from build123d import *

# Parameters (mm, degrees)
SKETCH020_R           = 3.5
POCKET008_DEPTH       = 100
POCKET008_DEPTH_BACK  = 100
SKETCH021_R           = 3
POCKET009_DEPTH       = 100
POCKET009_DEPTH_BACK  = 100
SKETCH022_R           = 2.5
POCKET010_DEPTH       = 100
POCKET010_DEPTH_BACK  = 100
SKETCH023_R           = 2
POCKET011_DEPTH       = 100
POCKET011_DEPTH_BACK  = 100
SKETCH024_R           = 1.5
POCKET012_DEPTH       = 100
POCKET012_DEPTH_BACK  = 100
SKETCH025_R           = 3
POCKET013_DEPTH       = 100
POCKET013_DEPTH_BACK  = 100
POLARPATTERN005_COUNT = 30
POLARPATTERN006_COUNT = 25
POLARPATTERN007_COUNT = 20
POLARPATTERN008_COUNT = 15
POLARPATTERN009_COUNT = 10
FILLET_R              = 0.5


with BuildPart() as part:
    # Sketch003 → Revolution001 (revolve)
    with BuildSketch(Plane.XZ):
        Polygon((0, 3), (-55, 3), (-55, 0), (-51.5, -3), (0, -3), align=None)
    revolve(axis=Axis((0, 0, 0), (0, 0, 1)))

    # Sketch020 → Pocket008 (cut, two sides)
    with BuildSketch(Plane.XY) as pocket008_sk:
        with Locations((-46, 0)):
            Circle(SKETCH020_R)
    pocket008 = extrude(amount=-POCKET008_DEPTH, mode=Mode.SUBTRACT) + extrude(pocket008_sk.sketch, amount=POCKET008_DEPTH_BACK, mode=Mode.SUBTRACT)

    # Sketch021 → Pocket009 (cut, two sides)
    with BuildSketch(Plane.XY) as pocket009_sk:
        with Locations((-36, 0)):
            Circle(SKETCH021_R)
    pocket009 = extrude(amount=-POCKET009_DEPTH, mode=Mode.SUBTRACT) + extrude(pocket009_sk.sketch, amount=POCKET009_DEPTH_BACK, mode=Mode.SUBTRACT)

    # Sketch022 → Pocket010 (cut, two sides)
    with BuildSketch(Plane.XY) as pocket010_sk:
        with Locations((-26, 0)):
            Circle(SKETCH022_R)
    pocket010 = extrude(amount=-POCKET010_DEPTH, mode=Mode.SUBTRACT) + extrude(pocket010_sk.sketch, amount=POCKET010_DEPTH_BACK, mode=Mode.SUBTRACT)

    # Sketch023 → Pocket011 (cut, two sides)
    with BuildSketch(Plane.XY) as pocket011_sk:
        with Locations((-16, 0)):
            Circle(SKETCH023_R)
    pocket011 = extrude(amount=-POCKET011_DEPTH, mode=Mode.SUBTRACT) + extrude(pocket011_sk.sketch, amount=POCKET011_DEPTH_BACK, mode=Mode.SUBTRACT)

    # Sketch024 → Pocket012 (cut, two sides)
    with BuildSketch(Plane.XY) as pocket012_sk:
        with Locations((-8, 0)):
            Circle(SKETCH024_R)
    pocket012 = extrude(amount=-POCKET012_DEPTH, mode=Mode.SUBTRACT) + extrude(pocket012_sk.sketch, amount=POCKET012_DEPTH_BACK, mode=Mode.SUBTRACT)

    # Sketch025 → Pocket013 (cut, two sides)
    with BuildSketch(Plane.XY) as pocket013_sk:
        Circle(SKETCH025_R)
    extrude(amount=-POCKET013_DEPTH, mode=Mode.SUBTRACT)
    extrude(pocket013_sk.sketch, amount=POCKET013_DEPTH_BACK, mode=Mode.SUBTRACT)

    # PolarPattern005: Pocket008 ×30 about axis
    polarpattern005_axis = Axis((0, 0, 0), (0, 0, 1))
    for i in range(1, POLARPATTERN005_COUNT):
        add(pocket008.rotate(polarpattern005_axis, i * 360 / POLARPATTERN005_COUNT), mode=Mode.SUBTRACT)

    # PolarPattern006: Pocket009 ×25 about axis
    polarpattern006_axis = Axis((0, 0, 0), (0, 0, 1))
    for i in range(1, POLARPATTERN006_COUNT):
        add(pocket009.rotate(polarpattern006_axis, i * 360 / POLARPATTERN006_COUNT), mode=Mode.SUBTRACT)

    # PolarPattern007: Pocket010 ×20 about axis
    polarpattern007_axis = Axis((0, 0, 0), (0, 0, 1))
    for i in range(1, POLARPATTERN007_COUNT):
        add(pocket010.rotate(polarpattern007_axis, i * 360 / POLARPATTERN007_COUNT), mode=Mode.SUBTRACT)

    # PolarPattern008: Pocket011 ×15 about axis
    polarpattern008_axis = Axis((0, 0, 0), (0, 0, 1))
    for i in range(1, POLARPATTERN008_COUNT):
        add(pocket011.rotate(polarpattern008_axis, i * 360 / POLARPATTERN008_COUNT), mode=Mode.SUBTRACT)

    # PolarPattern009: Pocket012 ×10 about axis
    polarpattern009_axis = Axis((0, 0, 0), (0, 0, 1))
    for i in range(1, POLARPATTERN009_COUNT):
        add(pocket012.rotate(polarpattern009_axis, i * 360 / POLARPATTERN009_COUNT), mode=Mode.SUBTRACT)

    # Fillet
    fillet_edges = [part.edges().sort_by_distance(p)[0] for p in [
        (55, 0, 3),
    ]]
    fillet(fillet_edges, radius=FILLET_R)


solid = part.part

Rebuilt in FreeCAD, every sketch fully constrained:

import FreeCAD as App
import Part
import Sketcher
from FreeCAD import Vector
Q = App.Units.Quantity


def edges_at(feature, points):
    """Names of the edges that pass closest to the given points."""
    edges = feature.Shape.Edges
    near = lambda p: min(range(len(edges)), key=lambda i: edges[i].distToShape(Part.Vertex(*p))[0])
    return sorted({f"Edge{near(p) + 1}" for p in points})

doc = App.newDocument("Part")
body = doc.addObject("PartDesign::Body", "Body")

# Sketch on XZ plane
sketch1 = body.newObject("Sketcher::SketchObject", "Sketch")
sketch1.AttachmentSupport = (doc.getObject("XZ_Plane"), [""])
sketch1.MapMode = "FlatFace"
sketch1.addGeometry([
    Part.LineSegment(Vector(0, 3, 0), Vector(-55, 3, 0)),  # 0
    Part.LineSegment(Vector(-55, 3, 0), Vector(-55, 0, 0)),  # 1
    Part.LineSegment(Vector(-55, 0, 0), Vector(-51.5, -3, 0)),  # 2
    Part.LineSegment(Vector(-51.5, -3, 0), Vector(0, -3, 0)),  # 3
    Part.LineSegment(Vector(0, -3, 0), Vector(0, 3, 0)),  # 4
], False)
sketch1.addConstraint([
    Sketcher.Constraint("Coincident", 0, 2, 1, 1),
    Sketcher.Constraint("Coincident", 1, 2, 2, 1),
    Sketcher.Constraint("Coincident", 2, 2, 3, 1),
    Sketcher.Constraint("Coincident", 3, 2, 4, 1),
    Sketcher.Constraint("Coincident", 4, 2, 0, 1),
    Sketcher.Constraint("Horizontal", 0),
    Sketcher.Constraint("Vertical", 1),
    Sketcher.Constraint("Horizontal", 3),
    Sketcher.Constraint("Vertical", 4),
    Sketcher.Constraint("Symmetric", 3, 2, 4, 2, -1, 1),
    Sketcher.Constraint("PointOnObject", 1, 2, -1),
    Sketcher.Constraint("DistanceX", 0, 2, 0, 1, Q("55 mm")),
    Sketcher.Constraint("DistanceY", 1, 2, 1, 1, Q("3 mm")),
    Sketcher.Constraint("DistanceX", 3, 1, 3, 2, Q("51.5 mm")),
])
revolution = body.newObject("PartDesign::Revolution", "Revolution")
revolution.Profile = sketch1
revolution.ReferenceAxis = (sketch1, ["V_Axis"])
revolution.Angle = 360

# Sketch on XY plane
sketch2 = body.newObject("Sketcher::SketchObject", "Sketch001")
sketch2.AttachmentSupport = (doc.getObject("XY_Plane"), [""])
sketch2.MapMode = "FlatFace"
sketch2.addGeometry(Part.Circle(Vector(-46, 0, 0), Vector(0, 0, 1), 3.5), False)
sketch2.addConstraint([
    Sketcher.Constraint("PointOnObject", 0, 3, -1),
    Sketcher.Constraint("Diameter", 0, Q("7 mm")),
    Sketcher.Constraint("DistanceX", 0, 3, -1, 1, Q("46 mm")),
])
pocket1 = body.newObject("PartDesign::Pocket", "Pocket")
pocket1.Profile = sketch2
pocket1.Type = "ThroughAll"
pocket1.Midplane = True

# Sketch on XY plane
sketch3 = body.newObject("Sketcher::SketchObject", "Sketch002")
sketch3.AttachmentSupport = (doc.getObject("XY_Plane"), [""])
sketch3.MapMode = "FlatFace"
sketch3.addGeometry(Part.Circle(Vector(-36, 0, 0), Vector(0, 0, 1), 3), False)
sketch3.addConstraint([
    Sketcher.Constraint("PointOnObject", 0, 3, -1),
    Sketcher.Constraint("Diameter", 0, Q("6 mm")),
    Sketcher.Constraint("DistanceX", 0, 3, -1, 1, Q("36 mm")),
])
pocket2 = body.newObject("PartDesign::Pocket", "Pocket001")
pocket2.Profile = sketch3
pocket2.Type = "ThroughAll"
pocket2.Midplane = True

# Sketch on XY plane
sketch4 = body.newObject("Sketcher::SketchObject", "Sketch003")
sketch4.AttachmentSupport = (doc.getObject("XY_Plane"), [""])
sketch4.MapMode = "FlatFace"
sketch4.addGeometry(Part.Circle(Vector(-26, 0, 0), Vector(0, 0, 1), 2.5), False)
sketch4.addConstraint([
    Sketcher.Constraint("PointOnObject", 0, 3, -1),
    Sketcher.Constraint("Diameter", 0, Q("5 mm")),
    Sketcher.Constraint("DistanceX", 0, 3, -1, 1, Q("26 mm")),
])
pocket3 = body.newObject("PartDesign::Pocket", "Pocket002")
pocket3.Profile = sketch4
pocket3.Type = "ThroughAll"
pocket3.Midplane = True

# Sketch on XY plane
sketch5 = body.newObject("Sketcher::SketchObject", "Sketch004")
sketch5.AttachmentSupport = (doc.getObject("XY_Plane"), [""])
sketch5.MapMode = "FlatFace"
sketch5.addGeometry(Part.Circle(Vector(-16, 0, 0), Vector(0, 0, 1), 2), False)
sketch5.addConstraint([
    Sketcher.Constraint("PointOnObject", 0, 3, -1),
    Sketcher.Constraint("Diameter", 0, Q("4 mm")),
    Sketcher.Constraint("DistanceX", 0, 3, -1, 1, Q("16 mm")),
])
pocket4 = body.newObject("PartDesign::Pocket", "Pocket003")
pocket4.Profile = sketch5
pocket4.Type = "ThroughAll"
pocket4.Midplane = True

# Sketch on XY plane
sketch6 = body.newObject("Sketcher::SketchObject", "Sketch005")
sketch6.AttachmentSupport = (doc.getObject("XY_Plane"), [""])
sketch6.MapMode = "FlatFace"
sketch6.addGeometry(Part.Circle(Vector(-8, 0, 0), Vector(0, 0, 1), 1.5), False)
sketch6.addConstraint([
    Sketcher.Constraint("PointOnObject", 0, 3, -1),
    Sketcher.Constraint("Diameter", 0, Q("3 mm")),
    Sketcher.Constraint("DistanceX", 0, 3, -1, 1, Q("8 mm")),
])
pocket5 = body.newObject("PartDesign::Pocket", "Pocket004")
pocket5.Profile = sketch6
pocket5.Type = "ThroughAll"
pocket5.Midplane = True

# Sketch on XY plane
sketch7 = body.newObject("Sketcher::SketchObject", "Sketch006")
sketch7.AttachmentSupport = (doc.getObject("XY_Plane"), [""])
sketch7.MapMode = "FlatFace"
sketch7.addGeometry(Part.Circle(Vector(0, 0, 0), Vector(0, 0, 1), 3), False)
sketch7.addConstraint([
    Sketcher.Constraint("Coincident", 0, 3, -1, 1),
    Sketcher.Constraint("Diameter", 0, Q("6 mm")),
])
pocket6 = body.newObject("PartDesign::Pocket", "Pocket005")
pocket6.Profile = sketch7
pocket6.Type = "ThroughAll"
pocket6.Midplane = True
doc.recompute()

polarpattern = body.newObject("PartDesign::PolarPattern", "PolarPattern")
polarpattern.Originals = [pocket1]
polarpattern.Axis = (doc.getObject("Z_Axis"), [""])
polarpattern.Angle = 360
polarpattern.Occurrences = 30
body.Tip = polarpattern
doc.recompute()

polarpattern2 = body.newObject("PartDesign::PolarPattern", "PolarPattern001")
polarpattern2.Originals = [pocket2]
polarpattern2.Axis = (doc.getObject("Z_Axis"), [""])
polarpattern2.Angle = 360
polarpattern2.Occurrences = 25
body.Tip = polarpattern2
doc.recompute()

polarpattern3 = body.newObject("PartDesign::PolarPattern", "PolarPattern002")
polarpattern3.Originals = [pocket3]
polarpattern3.Axis = (doc.getObject("Z_Axis"), [""])
polarpattern3.Angle = 360
polarpattern3.Occurrences = 20
body.Tip = polarpattern3
doc.recompute()

polarpattern4 = body.newObject("PartDesign::PolarPattern", "PolarPattern003")
polarpattern4.Originals = [pocket4]
polarpattern4.Axis = (doc.getObject("Z_Axis"), [""])
polarpattern4.Angle = 360
polarpattern4.Occurrences = 15
body.Tip = polarpattern4
doc.recompute()

polarpattern5 = body.newObject("PartDesign::PolarPattern", "PolarPattern004")
polarpattern5.Originals = [pocket5]
polarpattern5.Axis = (doc.getObject("Z_Axis"), [""])
polarpattern5.Angle = 360
polarpattern5.Occurrences = 10
body.Tip = polarpattern5
doc.recompute()

fillet = body.newObject("PartDesign::Fillet", "Fillet")
fillet.Base = (polarpattern5, edges_at(polarpattern5, [(55, 0, 3)]))
fillet.Radius = 0.5

doc.recompute()
